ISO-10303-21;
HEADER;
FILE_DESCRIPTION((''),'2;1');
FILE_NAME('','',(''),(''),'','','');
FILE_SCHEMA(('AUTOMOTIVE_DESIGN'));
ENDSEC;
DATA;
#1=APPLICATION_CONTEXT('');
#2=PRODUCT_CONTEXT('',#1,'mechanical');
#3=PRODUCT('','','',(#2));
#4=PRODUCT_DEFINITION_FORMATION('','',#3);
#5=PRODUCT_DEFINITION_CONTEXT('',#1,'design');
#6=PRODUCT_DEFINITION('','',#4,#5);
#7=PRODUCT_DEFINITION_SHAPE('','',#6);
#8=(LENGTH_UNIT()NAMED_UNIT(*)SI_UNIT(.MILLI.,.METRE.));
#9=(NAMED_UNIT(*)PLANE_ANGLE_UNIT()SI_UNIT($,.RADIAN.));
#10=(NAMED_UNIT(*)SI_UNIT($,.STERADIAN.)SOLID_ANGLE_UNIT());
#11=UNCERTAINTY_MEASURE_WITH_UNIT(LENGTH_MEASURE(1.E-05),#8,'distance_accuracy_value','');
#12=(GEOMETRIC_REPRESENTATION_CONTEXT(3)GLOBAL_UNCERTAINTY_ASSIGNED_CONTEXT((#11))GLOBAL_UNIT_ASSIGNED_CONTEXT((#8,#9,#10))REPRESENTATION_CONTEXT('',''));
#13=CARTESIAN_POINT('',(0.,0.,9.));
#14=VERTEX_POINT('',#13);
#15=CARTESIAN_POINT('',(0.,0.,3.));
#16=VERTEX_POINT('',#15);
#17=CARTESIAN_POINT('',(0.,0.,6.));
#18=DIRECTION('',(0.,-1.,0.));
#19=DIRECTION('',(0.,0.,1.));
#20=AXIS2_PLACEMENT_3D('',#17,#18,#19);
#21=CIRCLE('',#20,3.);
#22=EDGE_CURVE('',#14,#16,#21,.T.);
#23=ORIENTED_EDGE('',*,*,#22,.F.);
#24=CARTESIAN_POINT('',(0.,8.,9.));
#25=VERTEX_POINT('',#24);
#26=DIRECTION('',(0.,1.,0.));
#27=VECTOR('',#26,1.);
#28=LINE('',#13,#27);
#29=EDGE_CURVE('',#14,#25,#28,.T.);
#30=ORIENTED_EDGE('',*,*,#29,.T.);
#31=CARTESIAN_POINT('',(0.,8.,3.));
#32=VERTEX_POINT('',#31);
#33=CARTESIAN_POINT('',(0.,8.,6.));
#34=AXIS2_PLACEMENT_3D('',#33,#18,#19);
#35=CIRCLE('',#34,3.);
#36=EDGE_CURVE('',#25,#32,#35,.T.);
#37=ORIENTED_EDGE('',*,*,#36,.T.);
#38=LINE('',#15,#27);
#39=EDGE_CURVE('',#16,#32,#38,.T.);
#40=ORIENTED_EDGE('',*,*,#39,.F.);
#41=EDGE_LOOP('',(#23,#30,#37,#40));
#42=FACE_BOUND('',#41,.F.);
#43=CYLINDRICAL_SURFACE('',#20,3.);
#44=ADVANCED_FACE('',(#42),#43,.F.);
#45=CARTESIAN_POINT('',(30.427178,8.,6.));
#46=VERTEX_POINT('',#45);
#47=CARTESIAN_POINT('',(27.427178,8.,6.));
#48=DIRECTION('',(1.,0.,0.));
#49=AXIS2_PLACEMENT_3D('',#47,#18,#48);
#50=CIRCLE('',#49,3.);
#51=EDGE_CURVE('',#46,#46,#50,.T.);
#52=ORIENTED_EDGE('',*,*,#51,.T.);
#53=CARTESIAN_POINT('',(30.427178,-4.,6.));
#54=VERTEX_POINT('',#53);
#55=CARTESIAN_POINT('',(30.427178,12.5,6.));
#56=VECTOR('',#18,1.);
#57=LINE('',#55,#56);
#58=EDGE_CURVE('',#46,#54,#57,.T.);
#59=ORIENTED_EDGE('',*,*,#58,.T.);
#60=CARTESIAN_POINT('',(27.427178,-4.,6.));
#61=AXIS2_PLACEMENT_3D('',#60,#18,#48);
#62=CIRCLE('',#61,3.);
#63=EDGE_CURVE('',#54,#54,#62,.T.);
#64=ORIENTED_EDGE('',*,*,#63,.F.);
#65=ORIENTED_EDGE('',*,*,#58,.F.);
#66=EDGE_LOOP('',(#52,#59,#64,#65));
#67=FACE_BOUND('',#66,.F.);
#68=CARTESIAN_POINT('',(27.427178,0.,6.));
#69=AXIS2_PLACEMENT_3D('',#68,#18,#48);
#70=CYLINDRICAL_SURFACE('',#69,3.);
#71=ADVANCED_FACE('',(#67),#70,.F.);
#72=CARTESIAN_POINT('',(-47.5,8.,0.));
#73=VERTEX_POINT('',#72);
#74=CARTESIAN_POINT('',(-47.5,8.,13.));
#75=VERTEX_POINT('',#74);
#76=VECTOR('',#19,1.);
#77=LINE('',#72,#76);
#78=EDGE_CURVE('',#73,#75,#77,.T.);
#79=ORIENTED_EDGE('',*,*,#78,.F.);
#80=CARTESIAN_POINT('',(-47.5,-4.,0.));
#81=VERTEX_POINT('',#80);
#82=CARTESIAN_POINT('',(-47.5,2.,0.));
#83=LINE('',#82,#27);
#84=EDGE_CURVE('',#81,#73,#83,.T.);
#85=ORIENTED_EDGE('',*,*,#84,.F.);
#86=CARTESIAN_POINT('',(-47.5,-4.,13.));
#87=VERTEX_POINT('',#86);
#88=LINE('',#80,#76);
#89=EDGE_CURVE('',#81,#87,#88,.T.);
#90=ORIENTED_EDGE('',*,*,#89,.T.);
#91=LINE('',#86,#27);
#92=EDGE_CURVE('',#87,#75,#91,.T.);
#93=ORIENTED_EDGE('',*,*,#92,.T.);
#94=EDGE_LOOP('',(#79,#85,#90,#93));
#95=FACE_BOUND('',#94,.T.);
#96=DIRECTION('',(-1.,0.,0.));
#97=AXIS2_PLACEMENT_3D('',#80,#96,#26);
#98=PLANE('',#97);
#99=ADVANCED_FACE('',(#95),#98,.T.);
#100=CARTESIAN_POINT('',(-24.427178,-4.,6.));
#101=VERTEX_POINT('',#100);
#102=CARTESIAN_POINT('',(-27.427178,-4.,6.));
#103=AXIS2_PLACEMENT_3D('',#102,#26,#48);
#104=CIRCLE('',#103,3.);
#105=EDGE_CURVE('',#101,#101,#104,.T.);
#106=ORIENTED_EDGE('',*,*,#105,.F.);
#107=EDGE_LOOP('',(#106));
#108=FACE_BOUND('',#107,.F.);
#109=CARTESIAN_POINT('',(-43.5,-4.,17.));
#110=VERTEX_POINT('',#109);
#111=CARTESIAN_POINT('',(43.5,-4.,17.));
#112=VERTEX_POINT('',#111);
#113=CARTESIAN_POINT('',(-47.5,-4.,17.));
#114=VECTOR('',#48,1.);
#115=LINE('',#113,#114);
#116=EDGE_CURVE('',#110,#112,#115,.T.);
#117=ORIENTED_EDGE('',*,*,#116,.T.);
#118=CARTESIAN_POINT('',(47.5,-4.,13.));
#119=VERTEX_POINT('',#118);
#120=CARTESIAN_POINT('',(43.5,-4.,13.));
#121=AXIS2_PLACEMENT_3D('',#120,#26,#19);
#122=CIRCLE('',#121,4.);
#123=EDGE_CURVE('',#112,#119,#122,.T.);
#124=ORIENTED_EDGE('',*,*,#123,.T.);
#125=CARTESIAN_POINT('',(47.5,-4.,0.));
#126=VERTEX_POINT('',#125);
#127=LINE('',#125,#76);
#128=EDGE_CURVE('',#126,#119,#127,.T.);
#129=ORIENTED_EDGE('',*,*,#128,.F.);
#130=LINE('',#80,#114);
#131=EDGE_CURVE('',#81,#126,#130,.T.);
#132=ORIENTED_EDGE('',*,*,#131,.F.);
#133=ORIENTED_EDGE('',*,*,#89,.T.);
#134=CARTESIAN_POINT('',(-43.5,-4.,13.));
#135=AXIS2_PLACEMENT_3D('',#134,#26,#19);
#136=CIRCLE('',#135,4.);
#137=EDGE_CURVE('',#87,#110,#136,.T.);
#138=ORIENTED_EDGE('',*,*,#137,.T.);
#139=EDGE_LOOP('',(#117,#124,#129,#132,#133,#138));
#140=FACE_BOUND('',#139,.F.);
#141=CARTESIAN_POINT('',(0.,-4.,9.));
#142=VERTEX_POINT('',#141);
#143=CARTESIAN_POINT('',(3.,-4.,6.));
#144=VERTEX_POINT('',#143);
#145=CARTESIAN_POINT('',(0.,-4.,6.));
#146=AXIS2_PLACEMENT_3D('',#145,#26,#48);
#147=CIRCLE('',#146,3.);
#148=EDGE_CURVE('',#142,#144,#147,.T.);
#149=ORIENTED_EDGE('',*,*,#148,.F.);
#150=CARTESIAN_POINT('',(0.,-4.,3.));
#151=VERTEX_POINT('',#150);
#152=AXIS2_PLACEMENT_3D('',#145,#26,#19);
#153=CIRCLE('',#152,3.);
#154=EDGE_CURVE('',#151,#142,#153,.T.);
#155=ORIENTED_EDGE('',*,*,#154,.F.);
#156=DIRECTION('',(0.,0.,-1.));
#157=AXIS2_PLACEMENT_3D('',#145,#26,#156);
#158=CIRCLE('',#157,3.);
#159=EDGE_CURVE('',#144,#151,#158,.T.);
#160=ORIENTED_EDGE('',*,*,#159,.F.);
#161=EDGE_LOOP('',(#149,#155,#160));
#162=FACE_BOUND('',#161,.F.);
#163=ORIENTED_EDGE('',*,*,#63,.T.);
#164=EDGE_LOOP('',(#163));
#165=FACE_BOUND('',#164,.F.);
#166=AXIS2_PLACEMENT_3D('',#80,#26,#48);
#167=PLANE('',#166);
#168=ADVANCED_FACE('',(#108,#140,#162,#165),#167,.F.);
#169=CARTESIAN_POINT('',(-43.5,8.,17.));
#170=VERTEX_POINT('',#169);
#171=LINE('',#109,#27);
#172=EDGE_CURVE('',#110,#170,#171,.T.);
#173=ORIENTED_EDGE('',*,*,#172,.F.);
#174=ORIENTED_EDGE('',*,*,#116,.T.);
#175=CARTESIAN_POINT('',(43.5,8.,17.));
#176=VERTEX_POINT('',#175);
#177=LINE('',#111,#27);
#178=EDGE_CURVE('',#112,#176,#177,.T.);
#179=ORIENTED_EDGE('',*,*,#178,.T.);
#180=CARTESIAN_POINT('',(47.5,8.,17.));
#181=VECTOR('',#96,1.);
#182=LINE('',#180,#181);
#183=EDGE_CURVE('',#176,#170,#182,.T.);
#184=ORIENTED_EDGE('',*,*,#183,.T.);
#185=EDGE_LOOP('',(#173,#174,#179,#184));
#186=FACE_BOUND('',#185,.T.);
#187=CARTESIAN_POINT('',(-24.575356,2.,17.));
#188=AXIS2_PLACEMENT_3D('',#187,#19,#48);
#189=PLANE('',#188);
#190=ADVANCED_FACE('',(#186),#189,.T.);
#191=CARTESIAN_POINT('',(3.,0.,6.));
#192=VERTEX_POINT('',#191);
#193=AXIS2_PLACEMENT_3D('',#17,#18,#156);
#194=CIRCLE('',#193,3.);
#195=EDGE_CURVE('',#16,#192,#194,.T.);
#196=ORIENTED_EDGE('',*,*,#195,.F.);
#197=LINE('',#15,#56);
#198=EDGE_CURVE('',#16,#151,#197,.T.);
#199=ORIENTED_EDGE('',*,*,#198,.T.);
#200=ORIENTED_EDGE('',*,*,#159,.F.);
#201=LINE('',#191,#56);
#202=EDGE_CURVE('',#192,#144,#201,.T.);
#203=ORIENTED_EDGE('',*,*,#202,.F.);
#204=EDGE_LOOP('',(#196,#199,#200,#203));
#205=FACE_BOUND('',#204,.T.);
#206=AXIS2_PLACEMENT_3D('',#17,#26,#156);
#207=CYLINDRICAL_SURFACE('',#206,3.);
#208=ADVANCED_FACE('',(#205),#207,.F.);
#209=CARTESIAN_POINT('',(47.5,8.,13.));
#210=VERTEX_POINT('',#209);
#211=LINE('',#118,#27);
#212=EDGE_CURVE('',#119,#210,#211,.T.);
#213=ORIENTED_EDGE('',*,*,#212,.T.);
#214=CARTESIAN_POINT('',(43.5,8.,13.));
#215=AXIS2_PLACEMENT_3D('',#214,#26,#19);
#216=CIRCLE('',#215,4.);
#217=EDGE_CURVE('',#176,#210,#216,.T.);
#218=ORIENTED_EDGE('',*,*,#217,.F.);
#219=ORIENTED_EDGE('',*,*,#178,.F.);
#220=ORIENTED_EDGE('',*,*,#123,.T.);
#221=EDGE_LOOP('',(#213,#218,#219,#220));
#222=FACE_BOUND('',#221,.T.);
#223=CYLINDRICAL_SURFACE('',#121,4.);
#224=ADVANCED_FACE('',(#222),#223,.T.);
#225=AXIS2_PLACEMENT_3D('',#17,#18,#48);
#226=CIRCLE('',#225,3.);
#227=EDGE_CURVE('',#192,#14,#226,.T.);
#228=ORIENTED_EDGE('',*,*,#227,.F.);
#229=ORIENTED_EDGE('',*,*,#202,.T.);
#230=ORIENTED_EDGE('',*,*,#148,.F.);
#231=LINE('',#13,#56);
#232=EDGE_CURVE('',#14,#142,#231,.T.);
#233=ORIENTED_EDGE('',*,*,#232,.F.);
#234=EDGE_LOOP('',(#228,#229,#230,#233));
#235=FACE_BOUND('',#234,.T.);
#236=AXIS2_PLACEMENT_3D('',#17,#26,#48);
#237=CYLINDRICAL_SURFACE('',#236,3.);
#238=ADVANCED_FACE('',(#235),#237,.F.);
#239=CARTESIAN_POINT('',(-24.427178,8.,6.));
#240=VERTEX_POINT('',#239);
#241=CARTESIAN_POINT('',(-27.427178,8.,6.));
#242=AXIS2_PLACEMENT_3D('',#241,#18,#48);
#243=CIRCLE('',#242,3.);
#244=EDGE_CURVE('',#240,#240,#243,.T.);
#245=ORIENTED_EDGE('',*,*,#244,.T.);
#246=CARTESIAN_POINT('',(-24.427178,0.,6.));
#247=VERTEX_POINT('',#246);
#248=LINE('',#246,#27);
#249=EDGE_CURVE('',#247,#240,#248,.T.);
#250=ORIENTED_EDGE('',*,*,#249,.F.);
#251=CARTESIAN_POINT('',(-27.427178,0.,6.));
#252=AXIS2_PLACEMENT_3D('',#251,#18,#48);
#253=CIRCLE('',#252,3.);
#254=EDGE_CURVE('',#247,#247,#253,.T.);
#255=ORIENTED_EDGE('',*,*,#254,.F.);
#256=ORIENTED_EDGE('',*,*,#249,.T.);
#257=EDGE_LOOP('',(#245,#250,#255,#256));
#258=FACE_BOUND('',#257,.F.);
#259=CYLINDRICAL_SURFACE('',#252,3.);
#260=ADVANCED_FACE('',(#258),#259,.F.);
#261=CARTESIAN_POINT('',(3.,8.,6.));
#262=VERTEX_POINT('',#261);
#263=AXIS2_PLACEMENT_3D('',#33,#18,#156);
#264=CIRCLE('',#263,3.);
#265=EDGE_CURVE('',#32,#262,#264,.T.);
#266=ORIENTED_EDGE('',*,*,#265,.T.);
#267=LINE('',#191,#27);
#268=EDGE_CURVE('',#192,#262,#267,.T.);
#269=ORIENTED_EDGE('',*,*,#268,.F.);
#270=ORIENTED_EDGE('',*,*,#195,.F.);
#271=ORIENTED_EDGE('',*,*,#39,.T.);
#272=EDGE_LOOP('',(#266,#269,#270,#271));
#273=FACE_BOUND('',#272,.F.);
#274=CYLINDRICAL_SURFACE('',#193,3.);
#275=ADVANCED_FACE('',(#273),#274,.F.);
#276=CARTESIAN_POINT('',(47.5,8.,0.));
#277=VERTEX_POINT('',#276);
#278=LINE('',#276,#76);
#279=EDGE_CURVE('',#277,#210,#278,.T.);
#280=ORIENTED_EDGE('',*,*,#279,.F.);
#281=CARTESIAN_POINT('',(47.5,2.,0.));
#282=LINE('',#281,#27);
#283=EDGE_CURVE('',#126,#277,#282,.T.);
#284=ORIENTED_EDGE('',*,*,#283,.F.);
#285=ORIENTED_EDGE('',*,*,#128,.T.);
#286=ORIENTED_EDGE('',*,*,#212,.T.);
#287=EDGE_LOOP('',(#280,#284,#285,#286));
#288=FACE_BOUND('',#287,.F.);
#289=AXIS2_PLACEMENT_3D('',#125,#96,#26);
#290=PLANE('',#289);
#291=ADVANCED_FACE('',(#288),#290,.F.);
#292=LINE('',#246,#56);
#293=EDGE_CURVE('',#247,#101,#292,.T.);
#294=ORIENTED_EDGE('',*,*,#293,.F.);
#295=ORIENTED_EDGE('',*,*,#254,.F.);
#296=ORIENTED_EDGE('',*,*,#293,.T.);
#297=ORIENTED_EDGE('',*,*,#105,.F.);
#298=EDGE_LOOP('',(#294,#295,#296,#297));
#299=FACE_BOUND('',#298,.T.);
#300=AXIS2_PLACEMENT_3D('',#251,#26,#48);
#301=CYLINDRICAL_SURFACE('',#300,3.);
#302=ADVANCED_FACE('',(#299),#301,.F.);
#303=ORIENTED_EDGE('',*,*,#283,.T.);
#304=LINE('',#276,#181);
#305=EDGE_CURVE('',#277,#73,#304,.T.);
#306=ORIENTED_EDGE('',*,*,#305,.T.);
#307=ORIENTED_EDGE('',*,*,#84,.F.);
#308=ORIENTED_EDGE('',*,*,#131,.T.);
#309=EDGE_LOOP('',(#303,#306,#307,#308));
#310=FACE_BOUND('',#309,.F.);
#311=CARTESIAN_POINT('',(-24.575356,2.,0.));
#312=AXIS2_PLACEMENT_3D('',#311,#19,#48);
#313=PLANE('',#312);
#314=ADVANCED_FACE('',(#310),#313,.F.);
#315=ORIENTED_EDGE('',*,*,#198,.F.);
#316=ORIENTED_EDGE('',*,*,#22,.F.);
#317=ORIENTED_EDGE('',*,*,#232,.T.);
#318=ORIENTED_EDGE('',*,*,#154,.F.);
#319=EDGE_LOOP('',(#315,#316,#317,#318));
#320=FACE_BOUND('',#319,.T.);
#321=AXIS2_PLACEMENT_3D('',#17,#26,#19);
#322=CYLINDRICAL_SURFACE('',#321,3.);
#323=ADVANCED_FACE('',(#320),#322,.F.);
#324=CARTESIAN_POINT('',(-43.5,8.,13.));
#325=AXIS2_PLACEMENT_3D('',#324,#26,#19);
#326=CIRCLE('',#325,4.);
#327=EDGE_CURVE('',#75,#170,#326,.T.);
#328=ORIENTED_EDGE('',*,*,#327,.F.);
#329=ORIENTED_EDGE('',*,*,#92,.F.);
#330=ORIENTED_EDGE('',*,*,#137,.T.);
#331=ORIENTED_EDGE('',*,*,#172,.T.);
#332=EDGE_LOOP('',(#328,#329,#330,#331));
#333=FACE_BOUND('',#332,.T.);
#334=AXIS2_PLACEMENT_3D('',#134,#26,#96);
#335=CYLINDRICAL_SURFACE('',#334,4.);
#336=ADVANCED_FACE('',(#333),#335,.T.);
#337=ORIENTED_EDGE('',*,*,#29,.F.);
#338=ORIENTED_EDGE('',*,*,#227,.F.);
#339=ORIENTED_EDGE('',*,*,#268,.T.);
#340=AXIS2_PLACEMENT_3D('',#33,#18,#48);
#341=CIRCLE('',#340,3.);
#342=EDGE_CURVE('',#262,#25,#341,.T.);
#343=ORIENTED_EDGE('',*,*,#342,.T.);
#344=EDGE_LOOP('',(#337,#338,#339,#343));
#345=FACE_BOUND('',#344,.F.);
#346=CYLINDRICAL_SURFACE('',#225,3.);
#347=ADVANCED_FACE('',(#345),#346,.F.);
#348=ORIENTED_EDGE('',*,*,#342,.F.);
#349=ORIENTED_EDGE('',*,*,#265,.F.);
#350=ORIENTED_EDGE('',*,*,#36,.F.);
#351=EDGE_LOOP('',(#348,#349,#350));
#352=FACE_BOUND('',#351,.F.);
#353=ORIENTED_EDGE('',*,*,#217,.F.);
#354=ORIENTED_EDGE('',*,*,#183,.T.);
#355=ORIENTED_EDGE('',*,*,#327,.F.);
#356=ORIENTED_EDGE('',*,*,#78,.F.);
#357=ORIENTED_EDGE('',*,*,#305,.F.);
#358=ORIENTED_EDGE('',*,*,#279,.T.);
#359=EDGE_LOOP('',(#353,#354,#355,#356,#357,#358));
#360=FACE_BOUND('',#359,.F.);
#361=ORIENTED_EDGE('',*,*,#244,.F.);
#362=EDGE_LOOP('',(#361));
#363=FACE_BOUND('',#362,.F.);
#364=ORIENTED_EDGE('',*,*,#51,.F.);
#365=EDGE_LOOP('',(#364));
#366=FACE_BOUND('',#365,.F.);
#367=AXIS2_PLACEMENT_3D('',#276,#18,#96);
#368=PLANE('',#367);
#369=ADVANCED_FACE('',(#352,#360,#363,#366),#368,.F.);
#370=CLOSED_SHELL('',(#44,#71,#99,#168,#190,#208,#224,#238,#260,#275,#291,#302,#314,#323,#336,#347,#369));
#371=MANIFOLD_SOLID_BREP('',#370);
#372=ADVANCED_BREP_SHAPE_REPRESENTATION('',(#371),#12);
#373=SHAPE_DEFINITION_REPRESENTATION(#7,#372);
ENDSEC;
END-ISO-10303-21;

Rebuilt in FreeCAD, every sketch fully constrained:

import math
import FreeCAD as App
import Part
import Sketcher

V = App.Vector
Q = App.Units.Quantity


def edges_at(feature, points):
    """Names of the edges that pass closest to the given points."""
    edges = feature.Shape.Edges
    near = lambda p: min(range(len(edges)), key=lambda i: edges[i].distToShape(Part.Vertex(*p))[0])
    return sorted({f"Edge{near(p) + 1}" for p in points})

doc = App.newDocument("Part")
params = doc.addObject("Spreadsheet::Sheet", "Params")
for row, (alias, value) in enumerate([
    ("sketch1_width", "95 mm"),
    ("sketch1_height", "12 mm"),
    ("pad1_length", "17 mm"),
    ("sketch2_diameter", "6 mm"),
    ("pocket1_length", "25 mm"),
    ("fillet_radius", "4 mm"),
], start=1):
    params.set(f"A{row}", alias)
    params.set(f"B{row}", "=" + value)
    params.setAlias(f"B{row}", alias)

body = doc.addObject("PartDesign::Body", "Body")

# Sketch on XY plane
sketch1 = body.newObject("Sketcher::SketchObject", "Sketch")
sketch1.AttachmentSupport = (doc.getObject("XY_Plane"), [""])
sketch1.MapMode = "FlatFace"
sketch1.addGeometry(Part.LineSegment(V(-48, 8, 0), V(-48, -4, 0)), False)
sketch1.addGeometry(Part.LineSegment(V(-48, -4, 0), V(48, -4, 0)), False)
sketch1.addGeometry(Part.LineSegment(V(48, -4, 0), V(48, 8, 0)), False)
sketch1.addGeometry(Part.LineSegment(V(48, 8, 0), V(-48, 8, 0)), False)
sketch1.addConstraint(Sketcher.Constraint("Coincident", 0, 2, 1, 1))
sketch1.addConstraint(Sketcher.Constraint("Coincident", 1, 2, 2, 1))
sketch1.addConstraint(Sketcher.Constraint("Coincident", 2, 2, 3, 1))
sketch1.addConstraint(Sketcher.Constraint("Coincident", 3, 2, 0, 1))
sketch1.addConstraint(Sketcher.Constraint("Vertical", 0))
sketch1.addConstraint(Sketcher.Constraint("Horizontal", 1))
sketch1.addConstraint(Sketcher.Constraint("Vertical", 2))
sketch1.addConstraint(Sketcher.Constraint("Horizontal", 3))
sketch1.addConstraint(Sketcher.Constraint("DistanceX", 1, 1, 1, 2, Q("95 mm")))
sketch1.addConstraint(Sketcher.Constraint("DistanceY", 0, 2, 0, 1, Q("12 mm")))
sketch1.addConstraint(Sketcher.Constraint("DistanceY", 0, 2, -1, 1, Q("4 mm")))
sketch1.addConstraint(Sketcher.Constraint("DistanceX", 0, 2, -1, 1, Q("47.5 mm")))
sketch1.setExpression("Constraints[8]", "Params.sketch1_width")
sketch1.setExpression("Constraints[9]", "Params.sketch1_height")
pad1 = body.newObject("PartDesign::Pad", "Pad")
pad1.Profile = sketch1
pad1.setExpression("Length", "Params.pad1_length")

# Sketch on XZ plane
sketch2 = body.newObject("Sketcher::SketchObject", "Sketch001")
sketch2.AttachmentSupport = (doc.getObject("XZ_Plane"), [""])
sketch2.MapMode = "FlatFace"
sketch2.addGeometry(Part.ArcOfCircle(Part.Circle(V(0, 6, 0), V(0, 0, 1), 3), math.radians(90), math.radians(270)), False)
sketch2.addGeometry(Part.ArcOfCircle(Part.Circle(V(0, 6, 0), V(0, 0, 1), 3), math.radians(-90), math.radians(0)), False)
sketch2.addGeometry(Part.ArcOfCircle(Part.Circle(V(0, 6, 0), V(0, 0, 1), 3), math.radians(0), math.radians(90)), False)
sketch2.addGeometry(Part.Circle(V(-27.4, 6, 0), V(0, 0, 1), 3), False)
sketch2.addGeometry(Part.Circle(V(27.4, 6, 0), V(0, 0, 1), 3), False)
sketch2.addConstraint(Sketcher.Constraint("Tangent", 0, 2, 1, 1))
sketch2.addConstraint(Sketcher.Constraint("Tangent", 1, 2, 2, 1))
sketch2.addConstraint(Sketcher.Constraint("Tangent", 2, 2, 0, 1))
sketch2.addConstraint(Sketcher.Constraint("Equal", 2, 3))
sketch2.addConstraint(Sketcher.Constraint("Equal", 3, 4))
sketch2.addConstraint(Sketcher.Constraint("Symmetric", 3, 3, 4, 3, -2))
sketch2.addConstraint(Sketcher.Constraint("PointOnObject", 0, 3, -2))
sketch2.addConstraint(Sketcher.Constraint("PointOnObject", 0, 2, -2))
sketch2.addConstraint(Sketcher.Constraint("PointOnObject", 2, 2, -2))
sketch2.addConstraint(Sketcher.Constraint("Horizontal", 2, 3, 3, 3))
sketch2.addConstraint(Sketcher.Constraint("Horizontal", 4, 3, 1, 2))
sketch2.addConstraint(Sketcher.Constraint("Diameter", 3, Q("6 mm")))
sketch2.addConstraint(Sketcher.Constraint("DistanceY", -1, 1, 0, 3, Q("6 mm")))
sketch2.addConstraint(Sketcher.Constraint("DistanceX", 3, 3, -1, 1, Q("27.427178 mm")))
sketch2.setExpression("Constraints[11]", "Params.sketch2_diameter")
pocket1 = body.newObject("PartDesign::Pocket", "Pocket")
pocket1.Profile = sketch2
pocket1.setExpression("Length", "Params.pocket1_length")
pocket1.Midplane = True
doc.recompute()

fillet = body.newObject("PartDesign::Fillet", "Fillet")
fillet.Base = (pocket1, edges_at(pocket1, [(-47.5, 2, 17), (47.5, 2, 17)]))
fillet.setExpression("Radius", "Params.fillet_radius")

doc.recompute()
